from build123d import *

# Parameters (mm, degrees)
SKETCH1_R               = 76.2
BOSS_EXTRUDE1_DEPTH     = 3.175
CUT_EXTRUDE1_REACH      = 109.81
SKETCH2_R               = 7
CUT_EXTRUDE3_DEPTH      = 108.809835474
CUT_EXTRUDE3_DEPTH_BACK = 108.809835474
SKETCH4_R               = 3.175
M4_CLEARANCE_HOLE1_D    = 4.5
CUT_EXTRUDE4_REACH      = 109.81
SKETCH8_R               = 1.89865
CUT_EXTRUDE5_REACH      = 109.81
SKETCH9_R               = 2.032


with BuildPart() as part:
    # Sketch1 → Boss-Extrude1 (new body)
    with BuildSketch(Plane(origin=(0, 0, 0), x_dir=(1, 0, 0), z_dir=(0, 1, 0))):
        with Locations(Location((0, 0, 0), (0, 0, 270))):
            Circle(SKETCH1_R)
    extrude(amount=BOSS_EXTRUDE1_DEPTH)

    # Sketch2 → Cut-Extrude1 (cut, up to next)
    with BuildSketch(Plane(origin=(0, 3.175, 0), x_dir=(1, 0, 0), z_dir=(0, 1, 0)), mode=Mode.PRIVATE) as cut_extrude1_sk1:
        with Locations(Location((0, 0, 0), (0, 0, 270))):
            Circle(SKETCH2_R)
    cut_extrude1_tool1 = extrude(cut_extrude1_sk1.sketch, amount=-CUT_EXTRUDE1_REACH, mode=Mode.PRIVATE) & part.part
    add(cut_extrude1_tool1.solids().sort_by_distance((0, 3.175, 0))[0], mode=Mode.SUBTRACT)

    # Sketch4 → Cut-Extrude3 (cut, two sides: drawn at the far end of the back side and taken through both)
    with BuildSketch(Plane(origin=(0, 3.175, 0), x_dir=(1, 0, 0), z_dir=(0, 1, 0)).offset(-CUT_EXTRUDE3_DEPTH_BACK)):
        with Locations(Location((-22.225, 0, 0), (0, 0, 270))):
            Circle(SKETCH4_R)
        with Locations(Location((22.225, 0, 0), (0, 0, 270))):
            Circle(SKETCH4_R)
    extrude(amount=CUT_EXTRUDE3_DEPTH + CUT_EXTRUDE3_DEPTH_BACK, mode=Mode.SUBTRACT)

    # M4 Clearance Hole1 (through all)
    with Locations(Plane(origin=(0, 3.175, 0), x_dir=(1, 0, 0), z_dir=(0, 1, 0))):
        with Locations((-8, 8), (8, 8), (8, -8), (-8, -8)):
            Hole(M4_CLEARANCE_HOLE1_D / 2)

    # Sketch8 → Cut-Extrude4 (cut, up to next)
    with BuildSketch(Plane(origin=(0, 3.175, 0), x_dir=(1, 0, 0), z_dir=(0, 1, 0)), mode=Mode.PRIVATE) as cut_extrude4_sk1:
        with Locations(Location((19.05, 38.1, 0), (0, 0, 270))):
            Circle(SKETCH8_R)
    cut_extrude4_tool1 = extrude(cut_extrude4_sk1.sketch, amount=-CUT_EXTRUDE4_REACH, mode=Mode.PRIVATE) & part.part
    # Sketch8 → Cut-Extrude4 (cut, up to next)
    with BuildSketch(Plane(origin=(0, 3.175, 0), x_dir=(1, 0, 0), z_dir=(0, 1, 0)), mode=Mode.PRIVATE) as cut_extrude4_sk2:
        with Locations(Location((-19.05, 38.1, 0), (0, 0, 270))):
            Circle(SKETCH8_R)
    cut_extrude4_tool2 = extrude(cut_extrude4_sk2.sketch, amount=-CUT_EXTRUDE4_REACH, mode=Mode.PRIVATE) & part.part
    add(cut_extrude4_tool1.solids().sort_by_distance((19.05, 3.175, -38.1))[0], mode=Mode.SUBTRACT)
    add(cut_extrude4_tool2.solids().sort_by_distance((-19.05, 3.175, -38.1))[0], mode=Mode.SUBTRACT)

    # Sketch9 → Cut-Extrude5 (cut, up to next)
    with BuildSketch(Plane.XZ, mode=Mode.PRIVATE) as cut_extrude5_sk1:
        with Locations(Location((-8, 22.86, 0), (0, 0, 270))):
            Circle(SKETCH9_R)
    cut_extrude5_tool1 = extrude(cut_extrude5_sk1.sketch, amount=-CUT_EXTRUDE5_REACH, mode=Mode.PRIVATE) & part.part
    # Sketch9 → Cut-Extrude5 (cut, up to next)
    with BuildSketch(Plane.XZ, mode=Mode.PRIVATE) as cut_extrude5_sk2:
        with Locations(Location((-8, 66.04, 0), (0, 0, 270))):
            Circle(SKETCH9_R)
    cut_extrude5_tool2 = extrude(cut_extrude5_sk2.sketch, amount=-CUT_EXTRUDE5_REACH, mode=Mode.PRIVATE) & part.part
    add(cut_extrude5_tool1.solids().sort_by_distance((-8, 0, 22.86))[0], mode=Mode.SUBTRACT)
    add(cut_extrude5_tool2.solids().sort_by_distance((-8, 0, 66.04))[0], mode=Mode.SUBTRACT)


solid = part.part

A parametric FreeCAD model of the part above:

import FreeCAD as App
import Part
import Sketcher

V = App.Vector
Q = App.Units.Quantity

doc = App.newDocument("Part")
body = doc.addObject("PartDesign::Body", "Body")

# Sketch on XZ plane
sketch1 = body.newObject("Sketcher::SketchObject", "Sketch")
sketch1.AttachmentSupport = (doc.getObject("XZ_Plane"), [""])
sketch1.MapMode = "FlatFace"
sketch1.addGeometry(Part.Circle(V(0, 0, 0), V(0, 0, 1), 76), False)
sketch1.addConstraint(Sketcher.Constraint("Coincident", 0, 3, -1, 1))
sketch1.addConstraint(Sketcher.Constraint("Diameter", 0, Q("6 in")))
pad1 = body.newObject("PartDesign::Pad", "Pad")
pad1.Profile = sketch1
pad1.Length = Q("0.125 in")
pad1.Reversed = True

# Sketch on XZ plane
sketch2 = body.newObject("Sketcher::SketchObject", "Sketch001")
sketch2.AttachmentSupport = (doc.getObject("XZ_Plane"), [""])
sketch2.MapMode = "FlatFace"
sketch2.AttachmentOffset = App.Placement(V(0, 0, -0.125 * 25.4), App.Rotation())
sketch2.addGeometry(Part.Circle(V(0, 0, 0), V(0, 0, 1), 7), False)
sketch2.addConstraint(Sketcher.Constraint("Coincident", 0, 3, -1, 1))
sketch2.addConstraint(Sketcher.Constraint("Diameter", 0, Q("14 mm")))
pocket1 = body.newObject("PartDesign::Pocket", "Pocket")
pocket1.Profile = sketch2
pocket1.Type = "UpToFirst"
pocket1.Reversed = True

# Sketch on XZ plane
sketch3 = body.newObject("Sketcher::SketchObject", "Sketch002")
sketch3.AttachmentSupport = (doc.getObject("XZ_Plane"), [""])
sketch3.MapMode = "FlatFace"
sketch3.AttachmentOffset = App.Placement(V(0, 0, -0.125 * 25.4), App.Rotation())
sketch3.addGeometry(Part.Circle(V(-22.2, 0, 0), V(0, 0, 1), 3.2), False)
sketch3.addGeometry(Part.Circle(V(22.2, 0, 0), V(0, 0, 1), 3.2), False)
sketch3.addConstraint(Sketcher.Constraint("Equal", 0, 1))
sketch3.addConstraint(Sketcher.Constraint("Symmetric", 0, 3, 1, 3, -1, 1))
sketch3.addConstraint(Sketcher.Constraint("PointOnObject", 0, 3, -1))
sketch3.addConstraint(Sketcher.Constraint("Diameter", 0, Q("0.25 in")))
sketch3.addConstraint(Sketcher.Constraint("DistanceX", 0, 3, 1, 3, Q("1.75 in")))
pocket2 = body.newObject("PartDesign::Pocket", "Pocket001")
pocket2.Profile = sketch3
pocket2.Type = "ThroughAll"
pocket2.Midplane = True

# Sketch on XZ plane
sketch4 = body.newObject("Sketcher::SketchObject", "Sketch003")
sketch4.AttachmentSupport = (doc.getObject("XZ_Plane"), [""])
sketch4.MapMode = "FlatFace"
sketch4.AttachmentOffset = App.Placement(V(0, 0, -0.125 * 25.4), App.Rotation())
sketch4.addGeometry(Part.Circle(V(-8, -8, 0), V(0, 0, 1), 2.2), False)
sketch4.addGeometry(Part.Circle(V(8, -8, 0), V(0, 0, 1), 2.2), False)
sketch4.addGeometry(Part.Circle(V(8, 8, 0), V(0, 0, 1), 2.2), False)
sketch4.addGeometry(Part.Circle(V(-8, 8, 0), V(0, 0, 1), 2.2), False)
sketch4.addConstraint(Sketcher.Constraint("Equal", 0, 1))
sketch4.addConstraint(Sketcher.Constraint("Equal", 1, 2))
sketch4.addConstraint(Sketcher.Constraint("Equal", 2, 3))
sketch4.addConstraint(Sketcher.Constraint("Symmetric", 0, 3, 2, 3, -1, 1))
sketch4.addConstraint(Sketcher.Constraint("Symmetric", 1, 3, 3, 3, -1, 1))
sketch4.addConstraint(Sketcher.Constraint("Symmetric", 0, 3, 1, 3, -2))
sketch4.addConstraint(Sketcher.Constraint("Diameter", 0, Q("4.5 mm")))
sketch4.addConstraint(Sketcher.Constraint("DistanceX", 0, 3, -1, 1, Q("8 mm")))
sketch4.addConstraint(Sketcher.Constraint("DistanceY", 0, 3, -1, 1, Q("8 mm")))
doc.recompute()
hole = body.newObject("PartDesign::Hole", "Hole")
hole.Profile = sketch4
hole.ThreadType = "None"
hole.Diameter = 4.5
hole.DepthType = "ThroughAll"
hole.Reversed = True

# Sketch on XZ plane
sketch5 = body.newObject("Sketcher::SketchObject", "Sketch004")
sketch5.AttachmentSupport = (doc.getObject("XZ_Plane"), [""])
sketch5.MapMode = "FlatFace"
sketch5.AttachmentOffset = App.Placement(V(0, 0, -0.125 * 25.4), App.Rotation())
sketch5.addGeometry(Part.Circle(V(19.1, -38.1, 0), V(0, 0, 1), 1.9), False)
sketch5.addConstraint(Sketcher.Constraint("Diameter", 0, Q("0.1495 in")))
sketch5.addConstraint(Sketcher.Constraint("DistanceY", 0, 3, -1, 1, Q("1.5 in")))
sketch5.addConstraint(Sketcher.Constraint("DistanceX", -1, 1, 0, 3, Q("0.75 in")))
pocket3 = body.newObject("PartDesign::Pocket", "Pocket002")
pocket3.Profile = sketch5
pocket3.Type = "UpToFirst"
pocket3.Reversed = True

# Sketch on XZ plane
sketch6 = body.newObject("Sketcher::SketchObject", "Sketch005")
sketch6.AttachmentSupport = (doc.getObject("XZ_Plane"), [""])
sketch6.MapMode = "FlatFace"
sketch6.AttachmentOffset = App.Placement(V(0, 0, -0.125 * 25.4), App.Rotation())
sketch6.addGeometry(Part.Circle(V(-19.1, -38.1, 0), V(0, 0, 1), 1.9), False)
sketch6.addConstraint(Sketcher.Constraint("Diameter", 0, Q("0.1495 in")))
sketch6.addConstraint(Sketcher.Constraint("DistanceY", 0, 3, -1, 1, Q("1.5 in")))
sketch6.addConstraint(Sketcher.Constraint("DistanceX", 0, 3, -1, 1, Q("0.75 in")))
pocket4 = body.newObject("PartDesign::Pocket", "Pocket003")
pocket4.Profile = sketch6
pocket4.Type = "UpToFirst"
pocket4.Reversed = True

# Sketch on XZ plane
sketch7 = body.newObject("Sketcher::SketchObject", "Sketch006")
sketch7.AttachmentSupport = (doc.getObject("XZ_Plane"), [""])
sketch7.MapMode = "FlatFace"
sketch7.addGeometry(Part.Circle(V(-8, 22.9, 0), V(0, 0, 1), 2), False)
sketch7.addConstraint(Sketcher.Constraint("Diameter", 0, Q("0.16 in")))
sketch7.addConstraint(Sketcher.Constraint("DistanceY", -1, 1, 0, 3, Q("0.9 in")))
sketch7.addConstraint(Sketcher.Constraint("DistanceX", 0, 3, -1, 1, Q("8 mm")))
pocket5 = body.newObject("PartDesign::Pocket", "Pocket004")
pocket5.Profile = sketch7
pocket5.Type = "UpToFirst"

# Sketch on XZ plane
sketch8 = body.newObject("Sketcher::SketchObject", "Sketch007")
sketch8.AttachmentSupport = (doc.getObject("XZ_Plane"), [""])
sketch8.MapMode = "FlatFace"
sketch8.addGeometry(Part.Circle(V(-8, 66, 0), V(0, 0, 1), 2), False)
sketch8.addConstraint(Sketcher.Constraint("Diameter", 0, Q("0.16 in")))
sketch8.addConstraint(Sketcher.Constraint("DistanceY", -1, 1, 0, 3, Q("2.6 in")))
sketch8.addConstraint(Sketcher.Constraint("DistanceX", 0, 3, -1, 1, Q("8 mm")))
pocket6 = body.newObject("PartDesign::Pocket", "Pocket005")
pocket6.Profile = sketch8
pocket6.Type = "UpToFirst"

doc.recompute()
